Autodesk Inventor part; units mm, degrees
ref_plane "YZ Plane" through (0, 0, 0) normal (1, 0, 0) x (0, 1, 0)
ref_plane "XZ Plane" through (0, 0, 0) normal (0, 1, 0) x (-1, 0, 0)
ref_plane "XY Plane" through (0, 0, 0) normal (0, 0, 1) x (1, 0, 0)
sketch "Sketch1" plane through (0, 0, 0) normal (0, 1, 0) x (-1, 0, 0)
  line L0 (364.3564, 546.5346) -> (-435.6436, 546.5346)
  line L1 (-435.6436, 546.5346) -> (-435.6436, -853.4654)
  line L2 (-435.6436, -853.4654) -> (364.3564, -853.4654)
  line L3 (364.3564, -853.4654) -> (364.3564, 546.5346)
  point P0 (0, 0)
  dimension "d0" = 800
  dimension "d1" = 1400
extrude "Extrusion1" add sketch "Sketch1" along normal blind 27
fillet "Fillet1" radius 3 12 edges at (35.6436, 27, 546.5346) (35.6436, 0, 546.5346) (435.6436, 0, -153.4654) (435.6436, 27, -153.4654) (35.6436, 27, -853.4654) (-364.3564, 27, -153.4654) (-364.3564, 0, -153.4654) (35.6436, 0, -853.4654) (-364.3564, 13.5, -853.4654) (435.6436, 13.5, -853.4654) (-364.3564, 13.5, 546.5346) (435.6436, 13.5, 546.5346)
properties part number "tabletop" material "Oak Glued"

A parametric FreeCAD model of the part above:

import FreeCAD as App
import Part
import Sketcher

doc = App.newDocument("Part")
body = doc.addObject("PartDesign::Body", "Body")

# Sketch on XZ plane
sketch1 = body.newObject("Sketcher::SketchObject", "Sketch")
sketch1.AttachmentSupport = (doc.getObject("XZ_Plane"), [""])
sketch1.MapMode = "FlatFace"
sketch1.addGeometry([
    Part.LineSegment(App.Vector(-364, -853, 0), App.Vector(-364, 547, 0)),
    Part.LineSegment(App.Vector(-364, 547, 0), App.Vector(436, 547, 0)),
    Part.LineSegment(App.Vector(436, 547, 0), App.Vector(436, -853, 0)),
    Part.LineSegment(App.Vector(436, -853, 0), App.Vector(-364, -853, 0)),
], False)
sketch1.addConstraint([
    Sketcher.Constraint("Coincident", 0, 2, 1, 1),
    Sketcher.Constraint("Coincident", 1, 2, 2, 1),
    Sketcher.Constraint("Coincident", 2, 2, 3, 1),
    Sketcher.Constraint("Coincident", 3, 2, 0, 1),
    Sketcher.Constraint("Vertical", 0),
    Sketcher.Constraint("Horizontal", 1),
    Sketcher.Constraint("Vertical", 2),
    Sketcher.Constraint("Horizontal", 3),
    Sketcher.Constraint("DistanceX", 1, 1, 1, 2, 800.0),
    Sketcher.Constraint("DistanceY", 0, 1, 0, 2, 1400.0),
    Sketcher.Constraint("DistanceX", 0, 2, -1, 1, 364.3564),
    Sketcher.Constraint("DistanceY", -1, 1, 0, 2, 546.5346),
])
pad1 = body.newObject("PartDesign::Pad", "Pad")
pad1.Profile = sketch1
pad1.Length = 27
pad1.Reversed = True
doc.recompute()

fillet = body.newObject("PartDesign::Fillet", "Fillet")
fillet.Base = (pad1, ["Edge1"])
fillet.UseAllEdges = True
fillet.Radius = 3

doc.recompute()
